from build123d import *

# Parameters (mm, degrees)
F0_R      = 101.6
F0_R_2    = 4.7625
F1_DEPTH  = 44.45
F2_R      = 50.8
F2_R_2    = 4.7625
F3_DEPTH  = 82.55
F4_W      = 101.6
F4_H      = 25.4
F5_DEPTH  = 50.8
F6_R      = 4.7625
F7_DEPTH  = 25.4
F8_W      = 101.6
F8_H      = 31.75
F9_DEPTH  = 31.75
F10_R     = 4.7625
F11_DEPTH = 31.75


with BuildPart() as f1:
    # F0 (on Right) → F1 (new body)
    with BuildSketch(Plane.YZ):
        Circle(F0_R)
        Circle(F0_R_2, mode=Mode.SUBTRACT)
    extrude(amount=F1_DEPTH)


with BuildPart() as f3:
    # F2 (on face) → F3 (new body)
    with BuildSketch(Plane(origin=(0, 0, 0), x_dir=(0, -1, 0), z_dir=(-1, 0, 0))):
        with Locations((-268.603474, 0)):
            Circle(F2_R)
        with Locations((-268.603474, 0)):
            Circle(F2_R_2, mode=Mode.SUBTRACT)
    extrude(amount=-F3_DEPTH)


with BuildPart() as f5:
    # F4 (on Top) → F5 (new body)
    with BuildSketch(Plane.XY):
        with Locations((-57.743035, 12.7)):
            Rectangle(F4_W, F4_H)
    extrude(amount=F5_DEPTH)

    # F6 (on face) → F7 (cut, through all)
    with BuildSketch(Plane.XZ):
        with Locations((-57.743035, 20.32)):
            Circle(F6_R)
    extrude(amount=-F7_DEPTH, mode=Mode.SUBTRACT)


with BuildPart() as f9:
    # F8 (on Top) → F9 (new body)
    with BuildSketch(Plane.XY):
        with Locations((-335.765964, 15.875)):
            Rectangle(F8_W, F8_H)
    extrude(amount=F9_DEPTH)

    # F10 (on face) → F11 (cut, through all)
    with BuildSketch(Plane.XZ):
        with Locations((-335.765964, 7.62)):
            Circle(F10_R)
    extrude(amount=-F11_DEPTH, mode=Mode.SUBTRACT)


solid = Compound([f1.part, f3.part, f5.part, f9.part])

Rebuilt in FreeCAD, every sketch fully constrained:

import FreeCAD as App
import Part
import Sketcher
Q = App.Units.Quantity


def add_polygon(sketch, points):
    """Adds a closed chain of lines whose ends are joined by coincident constraints."""
    first, n = sketch.GeometryCount, len(points)
    for a, b in zip(points, points[1:] + points[:1]):
        sketch.addGeometry(Part.LineSegment(App.Vector(*a, 0), App.Vector(*b, 0)), False)
    for i in range(n):
        sketch.addConstraint(Sketcher.Constraint("Coincident", first + i, 2, first + (i + 1) % n, 1))

doc = App.newDocument("Part")
body = doc.addObject("PartDesign::Body", "Body")

sketch1 = doc.addObject("Sketcher::SketchObject", "Sketch")
body.addObject(sketch1)
sketch1.AttachmentSupport = (doc.YZ_Plane, [""])
sketch1.MapMode = "FlatFace"
sketch1.addGeometry(Part.Circle(App.Vector(0, 0, 0), App.Vector(0, 0, 1), 101.6), False)
sketch1.addGeometry(Part.Circle(App.Vector(0, 0, 0), App.Vector(0, 0, 1), 4.8), False)
sketch1.addConstraint(Sketcher.Constraint("Coincident", 0, 3, -1, 1))
sketch1.addConstraint(Sketcher.Constraint("Coincident", 1, 3, -1, 1))
sketch1.addConstraint(Sketcher.Constraint("Diameter", 0, Q("8 in")))
sketch1.addConstraint(Sketcher.Constraint("Diameter", 1, Q("0.375 in")))
pad1 = doc.addObject("PartDesign::Pad", "Pad")
body.addObject(pad1)
pad1.Profile = sketch1
pad1.Length = Q("1.75 in")
body2 = doc.addObject("PartDesign::Body", "Body001")

sketch2 = doc.addObject("Sketcher::SketchObject", "Sketch001")
body2.addObject(sketch2)
sketch2.AttachmentSupport = (doc.getObject("YZ_Plane001"), [""])
sketch2.MapMode = "FlatFace"
sketch2.addGeometry(Part.Circle(App.Vector(268.6, 0, 0), App.Vector(0, 0, 1), 50.8), False)
sketch2.addGeometry(Part.Circle(App.Vector(268.6, 0, 0), App.Vector(0, 0, 1), 4.8), False)
sketch2.addConstraint(Sketcher.Constraint("Coincident", 1, 3, 0, 3))
sketch2.addConstraint(Sketcher.Constraint("PointOnObject", 0, 3, -1))
sketch2.addConstraint(Sketcher.Constraint("Diameter", 0, Q("4 in")))
sketch2.addConstraint(Sketcher.Constraint("Diameter", 1, Q("0.375 in")))
sketch2.addConstraint(Sketcher.Constraint("DistanceX", -1, 1, 0, 3, 268.603474))
pad2 = doc.addObject("PartDesign::Pad", "Pad001")
body2.addObject(pad2)
pad2.Profile = sketch2
pad2.Length = Q("3.25 in")
body3 = doc.addObject("PartDesign::Body", "Body002")

sketch3 = doc.addObject("Sketcher::SketchObject", "Sketch002")
body3.addObject(sketch3)
sketch3.AttachmentSupport = (doc.getObject("XY_Plane002"), [""])
sketch3.MapMode = "FlatFace"
add_polygon(sketch3, [(-109, 25), (-109, 0), (-7, 0), (-7, 25)])
sketch3.addConstraint(Sketcher.Constraint("Vertical", 0))
sketch3.addConstraint(Sketcher.Constraint("Horizontal", 1))
sketch3.addConstraint(Sketcher.Constraint("Vertical", 2))
sketch3.addConstraint(Sketcher.Constraint("Horizontal", 3))
sketch3.addConstraint(Sketcher.Constraint("PointOnObject", 0, 2, -1))
sketch3.addConstraint(Sketcher.Constraint("DistanceX", 1, 1, 1, 2, Q("4 in")))
sketch3.addConstraint(Sketcher.Constraint("DistanceY", 0, 2, 0, 1, Q("1 in")))
sketch3.addConstraint(Sketcher.Constraint("DistanceX", 0, 2, -1, 1, 108.543035))
pad3 = doc.addObject("PartDesign::Pad", "Pad002")
body3.addObject(pad3)
pad3.Profile = sketch3
pad3.Length = Q("2 in")

sketch4 = doc.addObject("Sketcher::SketchObject", "Sketch003")
body3.addObject(sketch4)
sketch4.AttachmentSupport = (doc.getObject("XZ_Plane002"), [""])
sketch4.MapMode = "FlatFace"
sketch4.addGeometry(Part.Circle(App.Vector(-57.7, 20.3, 0), App.Vector(0, 0, 1), 4.8), False)
sketch4.addConstraint(Sketcher.Constraint("Diameter", 0, Q("0.375 in")))
sketch4.addConstraint(Sketcher.Constraint("DistanceY", -1, 1, 0, 3, Q("0.8 in")))
sketch4.addConstraint(Sketcher.Constraint("DistanceX", 0, 3, -1, 1, 57.743035))
pocket1 = doc.addObject("PartDesign::Pocket", "Pocket")
body3.addObject(pocket1)
pocket1.Profile = sketch4
pocket1.Type = "ThroughAll"
body4 = doc.addObject("PartDesign::Body", "Body003")

sketch5 = doc.addObject("Sketcher::SketchObject", "Sketch004")
body4.addObject(sketch5)
sketch5.AttachmentSupport = (doc.getObject("XY_Plane003"), [""])
sketch5.MapMode = "FlatFace"
add_polygon(sketch5, [(-387, 32), (-387, 0), (-285, 0), (-285, 32)])
sketch5.addConstraint(Sketcher.Constraint("Vertical", 0))
sketch5.addConstraint(Sketcher.Constraint("Horizontal", 1))
sketch5.addConstraint(Sketcher.Constraint("Vertical", 2))
sketch5.addConstraint(Sketcher.Constraint("Horizontal", 3))
sketch5.addConstraint(Sketcher.Constraint("PointOnObject", 0, 2, -1))
sketch5.addConstraint(Sketcher.Constraint("DistanceX", 1, 1, 1, 2, Q("4 in")))
sketch5.addConstraint(Sketcher.Constraint("DistanceY", 0, 2, 0, 1, Q("1.25 in")))
sketch5.addConstraint(Sketcher.Constraint("DistanceX", 0, 2, -1, 1, 386.565964))
pad4 = doc.addObject("PartDesign::Pad", "Pad003")
body4.addObject(pad4)
pad4.Profile = sketch5
pad4.Length = Q("1.25 in")

sketch6 = doc.addObject("Sketcher::SketchObject", "Sketch005")
body4.addObject(sketch6)
sketch6.AttachmentSupport = (doc.getObject("XZ_Plane003"), [""])
sketch6.MapMode = "FlatFace"
sketch6.addGeometry(Part.Circle(App.Vector(-335.8, 7.6, 0), App.Vector(0, 0, 1), 4.8), False)
sketch6.addConstraint(Sketcher.Constraint("Diameter", 0, Q("0.375 in")))
sketch6.addConstraint(Sketcher.Constraint("DistanceY", -1, 1, 0, 3, Q("0.3 in")))
sketch6.addConstraint(Sketcher.Constraint("DistanceX", 0, 3, -1, 1, 335.765964))
pocket2 = doc.addObject("PartDesign::Pocket", "Pocket001")
body4.addObject(pocket2)
pocket2.Profile = sketch6
pocket2.Type = "ThroughAll"

doc.recompute()
